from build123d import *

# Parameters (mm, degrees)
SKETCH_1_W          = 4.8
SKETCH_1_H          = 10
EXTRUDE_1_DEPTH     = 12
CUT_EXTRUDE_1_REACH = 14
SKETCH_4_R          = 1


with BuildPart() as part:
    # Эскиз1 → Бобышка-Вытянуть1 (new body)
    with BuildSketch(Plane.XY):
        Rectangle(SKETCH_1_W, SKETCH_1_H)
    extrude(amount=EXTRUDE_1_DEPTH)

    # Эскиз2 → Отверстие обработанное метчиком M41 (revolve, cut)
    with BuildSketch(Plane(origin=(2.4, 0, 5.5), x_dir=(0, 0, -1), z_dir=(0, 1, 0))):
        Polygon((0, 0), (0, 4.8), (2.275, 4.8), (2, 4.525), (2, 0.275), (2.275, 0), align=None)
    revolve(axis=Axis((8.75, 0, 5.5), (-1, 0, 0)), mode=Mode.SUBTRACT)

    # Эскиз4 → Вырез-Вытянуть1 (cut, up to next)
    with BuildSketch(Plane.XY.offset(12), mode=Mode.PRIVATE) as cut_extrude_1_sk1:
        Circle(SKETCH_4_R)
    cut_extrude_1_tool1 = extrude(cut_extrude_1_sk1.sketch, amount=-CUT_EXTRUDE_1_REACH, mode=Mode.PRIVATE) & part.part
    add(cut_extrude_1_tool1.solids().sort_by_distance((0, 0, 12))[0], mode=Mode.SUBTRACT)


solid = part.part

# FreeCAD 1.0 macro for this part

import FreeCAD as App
import Part
import Sketcher

V = App.Vector


def add_polygon(sketch, points):
    """Adds a closed chain of lines whose ends are joined by coincident constraints."""
    first, n = sketch.GeometryCount, len(points)
    for a, b in zip(points, points[1:] + points[:1]):
        sketch.addGeometry(Part.LineSegment(App.Vector(*a, 0), App.Vector(*b, 0)), False)
    for i in range(n):
        sketch.addConstraint(Sketcher.Constraint("Coincident", first + i, 2, first + (i + 1) % n, 1))

doc = App.newDocument("Part")
body = doc.addObject("PartDesign::Body", "Body")

# Sketch on XY plane
sketch1 = body.newObject("Sketcher::SketchObject", "Sketch")
sketch1.AttachmentSupport = (doc.getObject("XY_Plane"), [""])
sketch1.MapMode = "FlatFace"
add_polygon(sketch1, [(-2.4, 5), (-2.4, -5), (2.4, -5), (2.4, 5)])  # lines 0-3
sketch1.addConstraint(Sketcher.Constraint("Vertical", 0))
sketch1.addConstraint(Sketcher.Constraint("Horizontal", 1))
sketch1.addConstraint(Sketcher.Constraint("Vertical", 2))
sketch1.addConstraint(Sketcher.Constraint("Horizontal", 3))
sketch1.addConstraint(Sketcher.Constraint("Symmetric", 0, 2, 2, 2, -1, 1))
sketch1.addConstraint(Sketcher.Constraint("DistanceY", 0, 2, 0, 1, 10.0))
sketch1.addConstraint(Sketcher.Constraint("DistanceX", 1, 1, 1, 2, 4.8))
pad1 = body.newObject("PartDesign::Pad", "Pad")
pad1.Profile = sketch1
pad1.Length = 12

# Sketch on XZ plane
sketch2 = body.newObject("Sketcher::SketchObject", "Sketch001")
sketch2.AttachmentSupport = (doc.getObject("XZ_Plane"), [""])
sketch2.MapMode = "FlatFace"
add_polygon(sketch2, [(-2.4, 5.5), (2.4, 5.5), (2.4, 3.23), (2.12, 3.5), (-2.12, 3.5), (-2.4, 3.23)])  # lines 0-5
sketch2.addGeometry(Part.LineSegment(V(2.4, 5.5, 0), V(-2.4, 5.5, 0)), True)  # axis
sketch2.addConstraint(Sketcher.Constraint("Horizontal", 0))
sketch2.addConstraint(Sketcher.Constraint("Vertical", 1))
sketch2.addConstraint(Sketcher.Constraint("Horizontal", 3))
sketch2.addConstraint(Sketcher.Constraint("Vertical", 5))
sketch2.addConstraint(Sketcher.Constraint("Horizontal", 6))
sketch2.addConstraint(Sketcher.Constraint("Coincident", 6, 1, 0, 2))
sketch2.addConstraint(Sketcher.Constraint("Symmetric", 1, 2, 4, 2, -2))
sketch2.addConstraint(Sketcher.Constraint("Perpendicular", 2, 4))
sketch2.addConstraint(Sketcher.Constraint("Vertical", 4, 2, 6, 2))
sketch2.addConstraint(Sketcher.Constraint("Equal", 2, 4))
sketch2.addConstraint(Sketcher.Constraint("DistanceX", 0, 1, 0, 2, 4.8))
sketch2.addConstraint(Sketcher.Constraint("DistanceY", 2, 2, 0, 2, 2.0))
sketch2.addConstraint(Sketcher.Constraint("DistanceX", 3, 2, 3, 1, 4.25))
sketch2.addConstraint(Sketcher.Constraint("DistanceY", -1, 1, 0, 2, 5.5))
groove = body.newObject("PartDesign::Groove", "Groove")
groove.Profile = sketch2
groove.ReferenceAxis = (sketch2, ["Axis0"])
groove.Angle = 360

# Sketch on XY plane
sketch3 = body.newObject("Sketcher::SketchObject", "Sketch002")
sketch3.AttachmentSupport = (doc.getObject("XY_Plane"), [""])
sketch3.MapMode = "FlatFace"
sketch3.AttachmentOffset = App.Placement(V(0, 0, 12), App.Rotation())
sketch3.addGeometry(Part.Circle(V(0, 0, 0), V(0, 0, 1), 1), False)
sketch3.addConstraint(Sketcher.Constraint("Coincident", 0, 3, -1, 1))
sketch3.addConstraint(Sketcher.Constraint("Diameter", 0, 2.0))
pocket1 = body.newObject("PartDesign::Pocket", "Pocket")
pocket1.Profile = sketch3
pocket1.Type = "UpToFirst"

doc.recompute()
